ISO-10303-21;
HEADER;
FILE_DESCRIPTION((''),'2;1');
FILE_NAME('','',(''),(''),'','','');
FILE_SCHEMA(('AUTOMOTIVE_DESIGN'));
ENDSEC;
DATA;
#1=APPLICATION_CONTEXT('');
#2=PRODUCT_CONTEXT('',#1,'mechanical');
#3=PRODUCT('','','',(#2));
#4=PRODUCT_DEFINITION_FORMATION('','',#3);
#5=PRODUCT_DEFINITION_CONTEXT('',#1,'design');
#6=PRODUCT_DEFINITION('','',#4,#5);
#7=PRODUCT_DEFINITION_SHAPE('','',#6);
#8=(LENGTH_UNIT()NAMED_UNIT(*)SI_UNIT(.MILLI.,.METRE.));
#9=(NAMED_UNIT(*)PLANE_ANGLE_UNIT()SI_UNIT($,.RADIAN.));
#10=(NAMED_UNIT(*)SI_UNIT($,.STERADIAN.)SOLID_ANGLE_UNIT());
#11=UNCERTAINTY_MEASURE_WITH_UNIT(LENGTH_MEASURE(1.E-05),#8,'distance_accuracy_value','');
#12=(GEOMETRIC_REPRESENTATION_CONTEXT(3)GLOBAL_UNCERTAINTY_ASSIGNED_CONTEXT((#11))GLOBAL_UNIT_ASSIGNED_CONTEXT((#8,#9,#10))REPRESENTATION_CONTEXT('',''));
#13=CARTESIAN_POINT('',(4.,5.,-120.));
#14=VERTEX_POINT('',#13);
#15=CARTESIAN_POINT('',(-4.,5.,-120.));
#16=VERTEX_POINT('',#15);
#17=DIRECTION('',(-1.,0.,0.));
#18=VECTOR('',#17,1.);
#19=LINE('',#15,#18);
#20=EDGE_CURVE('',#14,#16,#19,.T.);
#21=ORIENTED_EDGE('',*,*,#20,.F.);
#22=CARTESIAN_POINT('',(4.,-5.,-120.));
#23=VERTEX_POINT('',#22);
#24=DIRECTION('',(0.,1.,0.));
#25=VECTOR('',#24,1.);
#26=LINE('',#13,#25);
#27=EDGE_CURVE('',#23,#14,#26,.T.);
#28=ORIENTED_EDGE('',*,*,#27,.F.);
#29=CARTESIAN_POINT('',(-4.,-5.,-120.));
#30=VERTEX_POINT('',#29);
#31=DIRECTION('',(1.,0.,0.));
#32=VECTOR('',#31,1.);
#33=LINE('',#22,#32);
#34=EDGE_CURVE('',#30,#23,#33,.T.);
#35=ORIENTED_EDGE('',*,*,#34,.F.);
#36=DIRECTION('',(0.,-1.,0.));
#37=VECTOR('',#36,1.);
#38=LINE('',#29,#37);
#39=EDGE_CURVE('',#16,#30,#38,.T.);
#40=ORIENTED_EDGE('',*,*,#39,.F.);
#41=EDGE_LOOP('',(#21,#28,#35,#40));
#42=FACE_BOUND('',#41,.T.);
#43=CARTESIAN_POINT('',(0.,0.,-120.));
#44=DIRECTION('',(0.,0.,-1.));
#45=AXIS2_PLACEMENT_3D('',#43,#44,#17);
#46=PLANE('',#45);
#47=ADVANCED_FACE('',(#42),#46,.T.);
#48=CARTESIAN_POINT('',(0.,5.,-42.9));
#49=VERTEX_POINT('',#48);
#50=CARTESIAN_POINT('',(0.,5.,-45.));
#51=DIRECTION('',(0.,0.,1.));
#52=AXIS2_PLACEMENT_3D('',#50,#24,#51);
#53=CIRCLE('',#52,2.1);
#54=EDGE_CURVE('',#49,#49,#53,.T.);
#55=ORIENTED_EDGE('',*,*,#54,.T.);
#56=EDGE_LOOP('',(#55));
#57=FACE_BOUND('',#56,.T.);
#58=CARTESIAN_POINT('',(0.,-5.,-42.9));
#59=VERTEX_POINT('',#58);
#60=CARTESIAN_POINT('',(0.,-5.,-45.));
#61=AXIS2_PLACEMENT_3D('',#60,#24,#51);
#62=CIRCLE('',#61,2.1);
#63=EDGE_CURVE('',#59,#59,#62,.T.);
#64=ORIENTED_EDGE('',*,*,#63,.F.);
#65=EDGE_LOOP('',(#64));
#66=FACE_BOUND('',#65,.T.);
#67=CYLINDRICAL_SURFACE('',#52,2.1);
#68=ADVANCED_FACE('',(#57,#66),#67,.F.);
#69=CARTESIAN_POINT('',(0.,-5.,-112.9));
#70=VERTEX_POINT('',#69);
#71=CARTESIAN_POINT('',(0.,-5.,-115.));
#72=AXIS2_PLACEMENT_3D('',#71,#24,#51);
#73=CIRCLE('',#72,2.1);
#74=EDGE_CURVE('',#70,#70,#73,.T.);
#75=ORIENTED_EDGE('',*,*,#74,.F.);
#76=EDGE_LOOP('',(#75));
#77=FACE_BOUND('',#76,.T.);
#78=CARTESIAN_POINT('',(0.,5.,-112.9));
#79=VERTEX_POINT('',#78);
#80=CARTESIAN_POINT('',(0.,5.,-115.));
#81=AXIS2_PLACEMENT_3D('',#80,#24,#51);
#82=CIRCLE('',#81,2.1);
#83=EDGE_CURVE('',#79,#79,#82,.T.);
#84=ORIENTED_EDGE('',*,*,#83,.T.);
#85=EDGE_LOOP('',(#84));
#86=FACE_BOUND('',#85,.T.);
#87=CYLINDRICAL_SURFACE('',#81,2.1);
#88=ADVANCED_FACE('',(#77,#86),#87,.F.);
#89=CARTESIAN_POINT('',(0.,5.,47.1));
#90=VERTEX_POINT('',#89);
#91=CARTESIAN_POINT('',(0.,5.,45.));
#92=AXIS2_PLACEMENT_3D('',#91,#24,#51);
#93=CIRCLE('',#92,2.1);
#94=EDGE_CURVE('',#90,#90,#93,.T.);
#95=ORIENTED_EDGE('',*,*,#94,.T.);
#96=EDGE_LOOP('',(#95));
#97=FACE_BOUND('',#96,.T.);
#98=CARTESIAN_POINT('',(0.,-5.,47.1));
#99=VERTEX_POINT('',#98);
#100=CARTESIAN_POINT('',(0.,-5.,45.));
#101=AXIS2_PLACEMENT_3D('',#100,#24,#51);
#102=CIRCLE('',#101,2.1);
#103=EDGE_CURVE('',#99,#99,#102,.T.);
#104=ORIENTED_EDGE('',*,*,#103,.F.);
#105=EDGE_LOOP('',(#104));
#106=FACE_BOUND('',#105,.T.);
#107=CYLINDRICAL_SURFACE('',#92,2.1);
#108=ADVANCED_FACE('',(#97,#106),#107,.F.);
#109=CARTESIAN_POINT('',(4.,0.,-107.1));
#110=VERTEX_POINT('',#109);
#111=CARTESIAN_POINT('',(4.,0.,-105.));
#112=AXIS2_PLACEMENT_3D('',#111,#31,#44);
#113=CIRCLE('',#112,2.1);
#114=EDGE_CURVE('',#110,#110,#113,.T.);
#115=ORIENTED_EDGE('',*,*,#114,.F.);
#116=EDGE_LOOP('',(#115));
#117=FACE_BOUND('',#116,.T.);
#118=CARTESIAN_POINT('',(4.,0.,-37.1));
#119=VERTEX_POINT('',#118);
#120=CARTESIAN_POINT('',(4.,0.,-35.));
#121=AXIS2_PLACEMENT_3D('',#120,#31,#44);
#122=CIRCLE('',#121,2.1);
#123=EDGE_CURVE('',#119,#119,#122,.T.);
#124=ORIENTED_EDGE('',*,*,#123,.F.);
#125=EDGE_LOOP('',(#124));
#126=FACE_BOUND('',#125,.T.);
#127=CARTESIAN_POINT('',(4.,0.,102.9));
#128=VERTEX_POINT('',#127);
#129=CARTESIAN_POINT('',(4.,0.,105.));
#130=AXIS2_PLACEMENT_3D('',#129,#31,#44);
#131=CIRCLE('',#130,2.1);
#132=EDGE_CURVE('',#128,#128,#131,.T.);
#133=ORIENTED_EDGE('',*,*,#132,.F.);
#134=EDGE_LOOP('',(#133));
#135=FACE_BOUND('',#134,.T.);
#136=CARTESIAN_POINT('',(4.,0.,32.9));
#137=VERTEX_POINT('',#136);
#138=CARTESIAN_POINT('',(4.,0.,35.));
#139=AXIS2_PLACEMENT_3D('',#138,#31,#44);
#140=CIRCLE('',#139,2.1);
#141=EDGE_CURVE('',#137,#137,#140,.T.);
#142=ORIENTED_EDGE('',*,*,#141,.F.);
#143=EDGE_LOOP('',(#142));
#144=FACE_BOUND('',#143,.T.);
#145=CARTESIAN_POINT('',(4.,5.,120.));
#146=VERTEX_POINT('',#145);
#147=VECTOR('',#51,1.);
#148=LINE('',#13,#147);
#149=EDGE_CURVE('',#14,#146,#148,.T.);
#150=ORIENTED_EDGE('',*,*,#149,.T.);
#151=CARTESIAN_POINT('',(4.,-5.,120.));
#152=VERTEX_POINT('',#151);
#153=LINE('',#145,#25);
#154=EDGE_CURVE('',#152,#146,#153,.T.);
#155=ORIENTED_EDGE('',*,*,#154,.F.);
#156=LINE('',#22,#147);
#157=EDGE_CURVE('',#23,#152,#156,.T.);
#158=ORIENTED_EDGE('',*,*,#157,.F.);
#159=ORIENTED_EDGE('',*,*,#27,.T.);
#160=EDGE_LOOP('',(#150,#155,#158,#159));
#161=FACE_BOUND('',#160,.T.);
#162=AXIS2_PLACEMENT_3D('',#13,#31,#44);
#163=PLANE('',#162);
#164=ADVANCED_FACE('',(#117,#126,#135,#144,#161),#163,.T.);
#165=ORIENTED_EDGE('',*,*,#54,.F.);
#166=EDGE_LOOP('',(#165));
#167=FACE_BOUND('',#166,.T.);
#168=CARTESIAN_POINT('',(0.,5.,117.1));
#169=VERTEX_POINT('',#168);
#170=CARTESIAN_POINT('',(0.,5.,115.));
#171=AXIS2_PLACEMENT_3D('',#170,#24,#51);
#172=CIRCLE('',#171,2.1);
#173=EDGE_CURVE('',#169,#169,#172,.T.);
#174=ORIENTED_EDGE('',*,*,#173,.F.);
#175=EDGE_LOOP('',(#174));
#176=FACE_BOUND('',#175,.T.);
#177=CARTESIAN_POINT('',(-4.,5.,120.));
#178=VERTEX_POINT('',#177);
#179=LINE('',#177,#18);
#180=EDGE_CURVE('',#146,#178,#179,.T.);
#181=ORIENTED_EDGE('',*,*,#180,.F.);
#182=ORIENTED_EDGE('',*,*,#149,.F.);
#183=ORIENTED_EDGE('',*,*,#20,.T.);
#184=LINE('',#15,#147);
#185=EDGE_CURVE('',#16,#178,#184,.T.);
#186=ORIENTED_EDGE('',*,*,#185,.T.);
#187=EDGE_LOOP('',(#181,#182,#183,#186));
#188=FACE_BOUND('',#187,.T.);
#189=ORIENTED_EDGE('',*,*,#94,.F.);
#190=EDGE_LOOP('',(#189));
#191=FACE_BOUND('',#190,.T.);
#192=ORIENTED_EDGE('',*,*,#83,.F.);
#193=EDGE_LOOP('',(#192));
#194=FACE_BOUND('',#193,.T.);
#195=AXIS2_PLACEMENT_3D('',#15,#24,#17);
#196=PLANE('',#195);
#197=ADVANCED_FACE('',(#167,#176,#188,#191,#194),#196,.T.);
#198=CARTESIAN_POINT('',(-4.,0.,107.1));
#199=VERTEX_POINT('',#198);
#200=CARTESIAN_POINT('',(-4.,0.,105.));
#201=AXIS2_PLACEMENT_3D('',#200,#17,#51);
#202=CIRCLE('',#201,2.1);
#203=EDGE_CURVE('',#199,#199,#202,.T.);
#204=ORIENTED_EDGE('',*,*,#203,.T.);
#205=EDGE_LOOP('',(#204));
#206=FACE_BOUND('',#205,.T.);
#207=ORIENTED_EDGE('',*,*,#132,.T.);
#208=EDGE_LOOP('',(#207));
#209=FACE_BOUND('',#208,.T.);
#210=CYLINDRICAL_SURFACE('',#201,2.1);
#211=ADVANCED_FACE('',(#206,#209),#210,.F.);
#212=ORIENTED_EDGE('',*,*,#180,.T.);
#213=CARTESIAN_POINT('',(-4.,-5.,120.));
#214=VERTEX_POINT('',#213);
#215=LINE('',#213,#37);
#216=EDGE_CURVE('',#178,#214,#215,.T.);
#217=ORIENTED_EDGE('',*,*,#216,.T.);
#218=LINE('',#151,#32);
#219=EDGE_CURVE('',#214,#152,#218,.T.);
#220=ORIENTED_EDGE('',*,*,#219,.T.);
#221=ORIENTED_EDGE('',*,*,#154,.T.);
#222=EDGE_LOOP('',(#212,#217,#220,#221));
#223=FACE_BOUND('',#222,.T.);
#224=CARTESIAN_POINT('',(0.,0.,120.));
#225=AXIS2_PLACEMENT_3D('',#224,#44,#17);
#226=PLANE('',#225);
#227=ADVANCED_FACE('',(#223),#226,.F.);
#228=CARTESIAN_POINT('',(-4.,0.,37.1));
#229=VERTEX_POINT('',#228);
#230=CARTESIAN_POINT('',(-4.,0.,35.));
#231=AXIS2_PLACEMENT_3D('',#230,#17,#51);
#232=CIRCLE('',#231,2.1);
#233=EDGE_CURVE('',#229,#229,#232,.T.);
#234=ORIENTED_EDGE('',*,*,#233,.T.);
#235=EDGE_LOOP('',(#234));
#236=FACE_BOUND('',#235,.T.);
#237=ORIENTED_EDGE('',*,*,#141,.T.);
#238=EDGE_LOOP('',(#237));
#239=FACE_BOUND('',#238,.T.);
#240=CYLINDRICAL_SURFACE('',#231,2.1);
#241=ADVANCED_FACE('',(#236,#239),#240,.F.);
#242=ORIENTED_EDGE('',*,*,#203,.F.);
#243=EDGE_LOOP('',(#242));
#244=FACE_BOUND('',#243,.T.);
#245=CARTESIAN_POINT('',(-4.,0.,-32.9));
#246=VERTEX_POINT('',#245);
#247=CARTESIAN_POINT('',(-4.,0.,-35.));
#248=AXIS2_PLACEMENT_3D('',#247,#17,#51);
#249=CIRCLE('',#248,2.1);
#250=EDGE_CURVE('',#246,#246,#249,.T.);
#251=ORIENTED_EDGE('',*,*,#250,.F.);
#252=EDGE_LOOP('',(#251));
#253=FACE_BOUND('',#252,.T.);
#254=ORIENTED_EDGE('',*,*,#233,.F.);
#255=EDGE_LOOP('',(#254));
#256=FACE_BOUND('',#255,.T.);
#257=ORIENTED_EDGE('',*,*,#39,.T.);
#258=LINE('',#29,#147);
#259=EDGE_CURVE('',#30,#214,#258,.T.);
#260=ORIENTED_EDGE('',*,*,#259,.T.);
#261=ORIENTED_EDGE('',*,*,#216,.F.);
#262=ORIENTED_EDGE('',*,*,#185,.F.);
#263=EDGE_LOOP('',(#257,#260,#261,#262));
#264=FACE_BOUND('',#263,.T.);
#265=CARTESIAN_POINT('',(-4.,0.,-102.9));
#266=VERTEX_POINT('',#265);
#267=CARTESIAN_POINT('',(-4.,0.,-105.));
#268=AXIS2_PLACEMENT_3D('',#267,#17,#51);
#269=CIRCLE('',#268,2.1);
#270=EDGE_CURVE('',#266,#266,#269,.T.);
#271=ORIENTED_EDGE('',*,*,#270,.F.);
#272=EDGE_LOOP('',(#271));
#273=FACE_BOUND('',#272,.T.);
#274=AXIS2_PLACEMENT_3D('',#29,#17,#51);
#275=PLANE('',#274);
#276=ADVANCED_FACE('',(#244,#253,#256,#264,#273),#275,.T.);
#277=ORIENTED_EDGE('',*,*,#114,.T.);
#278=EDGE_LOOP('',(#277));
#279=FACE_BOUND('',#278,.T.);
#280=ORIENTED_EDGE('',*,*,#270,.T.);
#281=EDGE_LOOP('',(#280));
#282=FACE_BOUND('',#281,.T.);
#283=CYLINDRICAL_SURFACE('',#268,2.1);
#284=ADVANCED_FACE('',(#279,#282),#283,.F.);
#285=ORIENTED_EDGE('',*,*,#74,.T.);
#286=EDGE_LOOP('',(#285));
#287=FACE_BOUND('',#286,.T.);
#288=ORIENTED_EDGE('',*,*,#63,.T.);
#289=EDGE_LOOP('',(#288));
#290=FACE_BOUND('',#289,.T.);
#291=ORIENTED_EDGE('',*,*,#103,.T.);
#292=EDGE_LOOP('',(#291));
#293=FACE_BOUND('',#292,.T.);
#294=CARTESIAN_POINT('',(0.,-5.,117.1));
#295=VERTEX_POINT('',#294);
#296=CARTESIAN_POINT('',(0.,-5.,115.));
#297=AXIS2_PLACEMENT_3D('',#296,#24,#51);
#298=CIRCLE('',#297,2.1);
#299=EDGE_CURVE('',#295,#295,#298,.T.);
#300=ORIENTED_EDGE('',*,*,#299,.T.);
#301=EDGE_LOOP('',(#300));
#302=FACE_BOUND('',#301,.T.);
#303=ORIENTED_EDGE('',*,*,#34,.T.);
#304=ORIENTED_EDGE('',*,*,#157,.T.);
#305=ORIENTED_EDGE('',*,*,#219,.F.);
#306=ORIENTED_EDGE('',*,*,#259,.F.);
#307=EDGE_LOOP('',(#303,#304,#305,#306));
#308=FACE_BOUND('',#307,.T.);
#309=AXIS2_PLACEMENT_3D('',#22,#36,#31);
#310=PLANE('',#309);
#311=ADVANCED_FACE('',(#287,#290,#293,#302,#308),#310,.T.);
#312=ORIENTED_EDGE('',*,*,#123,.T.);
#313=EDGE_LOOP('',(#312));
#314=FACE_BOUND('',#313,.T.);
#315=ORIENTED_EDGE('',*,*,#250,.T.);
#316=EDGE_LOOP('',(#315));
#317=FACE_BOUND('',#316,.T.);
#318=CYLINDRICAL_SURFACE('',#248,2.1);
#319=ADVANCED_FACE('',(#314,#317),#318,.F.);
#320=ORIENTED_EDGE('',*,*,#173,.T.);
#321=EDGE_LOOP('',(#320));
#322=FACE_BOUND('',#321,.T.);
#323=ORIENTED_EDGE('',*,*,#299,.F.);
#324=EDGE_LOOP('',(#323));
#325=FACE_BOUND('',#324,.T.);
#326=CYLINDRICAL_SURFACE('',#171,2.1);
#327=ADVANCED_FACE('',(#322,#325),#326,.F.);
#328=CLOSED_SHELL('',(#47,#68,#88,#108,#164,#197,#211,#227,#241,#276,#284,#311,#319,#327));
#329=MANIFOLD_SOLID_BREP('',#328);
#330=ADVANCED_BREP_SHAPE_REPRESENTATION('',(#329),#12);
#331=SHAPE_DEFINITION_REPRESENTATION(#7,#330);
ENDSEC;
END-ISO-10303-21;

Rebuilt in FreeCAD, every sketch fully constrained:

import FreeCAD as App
import Part
import Sketcher
Q = App.Units.Quantity

doc = App.newDocument("Part")
body = doc.addObject("PartDesign::Body", "Body")

# Sketch on XY plane
sketch1 = doc.addObject("Sketcher::SketchObject", "Sketch")
body.addObject(sketch1)
sketch1.AttachmentSupport = (doc.XY_Plane, [""])
sketch1.MapMode = "FlatFace"
sketch1.addGeometry(Part.LineSegment(App.Vector(-4, 5, 0), App.Vector(-4, -5, 0)), False)
sketch1.addGeometry(Part.LineSegment(App.Vector(-4, -5, 0), App.Vector(4, -5, 0)), False)
sketch1.addGeometry(Part.LineSegment(App.Vector(4, -5, 0), App.Vector(4, 5, 0)), False)
sketch1.addGeometry(Part.LineSegment(App.Vector(4, 5, 0), App.Vector(-4, 5, 0)), False)
sketch1.addConstraint(Sketcher.Constraint("Coincident", 0, 2, 1, 1))
sketch1.addConstraint(Sketcher.Constraint("Coincident", 1, 2, 2, 1))
sketch1.addConstraint(Sketcher.Constraint("Coincident", 2, 2, 3, 1))
sketch1.addConstraint(Sketcher.Constraint("Coincident", 3, 2, 0, 1))
sketch1.addConstraint(Sketcher.Constraint("Vertical", 0))
sketch1.addConstraint(Sketcher.Constraint("Horizontal", 1))
sketch1.addConstraint(Sketcher.Constraint("Vertical", 2))
sketch1.addConstraint(Sketcher.Constraint("Horizontal", 3))
sketch1.addConstraint(Sketcher.Constraint("Symmetric", 0, 2, 2, 2, -1, 1))
sketch1.addConstraint(Sketcher.Constraint("DistanceX", 1, 1, 1, 2, 8.0))
sketch1.addConstraint(Sketcher.Constraint("DistanceY", 0, 2, 0, 1, 10.0))
pad1 = doc.addObject("PartDesign::Pad", "Pad")
body.addObject(pad1)
pad1.Profile = sketch1
pad1.Type = "TwoLengths"
pad1.Length = 120
pad1.Length2 = 120

# Sketch on XZ plane
sketch2 = doc.addObject("Sketcher::SketchObject", "Sketch001")
body.addObject(sketch2)
sketch2.AttachmentSupport = (doc.XZ_Plane, [""])
sketch2.MapMode = "FlatFace"
sketch2.AttachmentOffset = App.Placement(App.Vector(0, 0, -5), App.Rotation())
sketch2.addGeometry(Part.Circle(App.Vector(0, 115, 0), App.Vector(0, 0, 1), 2.1), False)
sketch2.addGeometry(Part.Circle(App.Vector(0, 45, 0), App.Vector(0, 0, 1), 2.1), False)
sketch2.addConstraint(Sketcher.Constraint("Equal", 0, 1))
sketch2.addConstraint(Sketcher.Constraint("PointOnObject", 0, 3, -2))
sketch2.addConstraint(Sketcher.Constraint("PointOnObject", 1, 3, -2))
sketch2.addConstraint(Sketcher.Constraint("Diameter", 0, 4.2))
sketch2.addConstraint(Sketcher.Constraint("DistanceY", -1, 1, 0, 3, 115.0))
sketch2.addConstraint(Sketcher.Constraint("DistanceY", -1, 1, 1, 3, 45.0))
doc.recompute()
hole = doc.addObject("PartDesign::Hole", "Hole")
body.addObject(hole)
hole.Profile = sketch2
hole.ThreadType = "None"
hole.Diameter = 4.2
hole.DepthType = "ThroughAll"
hole.Reversed = True

# Sketch on XZ plane
sketch3 = doc.addObject("Sketcher::SketchObject", "Sketch002")
body.addObject(sketch3)
sketch3.AttachmentSupport = (doc.XZ_Plane, [""])
sketch3.MapMode = "FlatFace"
sketch3.addGeometry(Part.LineSegment(App.Vector(7.261807, 105, 0), App.Vector(-4, 105, 0)), False)
sketch3.addGeometry(Part.LineSegment(App.Vector(-4, 105, 0), App.Vector(-4, 107.1, 0)), False)
sketch3.addGeometry(Part.LineSegment(App.Vector(-4, 107.1, 0), App.Vector(6, 107.1, 0)), False)
sketch3.addGeometry(Part.LineSegment(App.Vector(6, 107.1, 0), App.Vector(7.261807, 105, 0)), False)
sketch3.addGeometry(Part.LineSegment(App.Vector(-4, 105, 0), App.Vector(7.261807, 105, 0)), True)  # axis
sketch3.addConstraint(Sketcher.Constraint("Coincident", 0, 2, 1, 1))
sketch3.addConstraint(Sketcher.Constraint("Coincident", 1, 2, 2, 1))
sketch3.addConstraint(Sketcher.Constraint("Coincident", 2, 2, 3, 1))
sketch3.addConstraint(Sketcher.Constraint("Coincident", 3, 2, 0, 1))
sketch3.addConstraint(Sketcher.Constraint("Horizontal", 0))
sketch3.addConstraint(Sketcher.Constraint("Vertical", 1))
sketch3.addConstraint(Sketcher.Constraint("Horizontal", 2))
sketch3.addConstraint(Sketcher.Constraint("Horizontal", 4))
sketch3.addConstraint(Sketcher.Constraint("Coincident", 4, 1, 0, 2))
sketch3.addConstraint(Sketcher.Constraint("Equal", 0, 4))
sketch3.addConstraint(Sketcher.Constraint("DistanceX", 2, 1, 2, 2, 10.0))
sketch3.addConstraint(Sketcher.Constraint("Angle", 3, Q("-59 deg")))
sketch3.addConstraint(Sketcher.Constraint("DistanceY", 1, 1, 1, 2, 2.1))
sketch3.addConstraint(Sketcher.Constraint("DistanceX", 0, 2, -1, 1, 4.0))
sketch3.addConstraint(Sketcher.Constraint("DistanceY", -1, 1, 0, 2, 105.0))
groove = doc.addObject("PartDesign::Groove", "Groove")
body.addObject(groove)
groove.Profile = sketch3
groove.ReferenceAxis = (sketch3, ["Axis0"])
groove.Angle = 360
doc.recompute()

linearpattern = doc.addObject("PartDesign::LinearPattern", "LinearPattern")
body.addObject(linearpattern)
linearpattern.Originals = [groove]
linearpattern.Direction = (doc.Z_Axis, [""])
linearpattern.Mode = "offset"
linearpattern.Offset = 70
linearpattern.Occurrences = 2
linearpattern.Reversed = True
body.Tip = linearpattern
doc.recompute()

mirrored = doc.addObject("PartDesign::Mirrored", "Mirrored")
body.addObject(mirrored)
mirrored.Originals = [hole, groove]
mirrored.MirrorPlane = (doc.XY_Plane, [""])
body.Tip = mirrored

# Sketch on XZ plane
sketch4 = doc.addObject("Sketcher::SketchObject", "Sketch003")
body.addObject(sketch4)
sketch4.AttachmentSupport = (doc.XZ_Plane, [""])
sketch4.MapMode = "FlatFace"
sketch4.addGeometry(Part.LineSegment(App.Vector(-4, -35, 0), App.Vector(7.261807, -35, 0)), False)
sketch4.addGeometry(Part.LineSegment(App.Vector(7.261807, -35, 0), App.Vector(6, -37.1, 0)), False)
sketch4.addGeometry(Part.LineSegment(App.Vector(6, -37.1, 0), App.Vector(-4, -37.1, 0)), False)
sketch4.addGeometry(Part.LineSegment(App.Vector(-4, -37.1, 0), App.Vector(-4, -35, 0)), False)
sketch4.addGeometry(Part.LineSegment(App.Vector(7.261807, -35, 0), App.Vector(-4, -35, 0)), True)  # axis
sketch4.addConstraint(Sketcher.Constraint("Coincident", 0, 2, 1, 1))
sketch4.addConstraint(Sketcher.Constraint("Coincident", 1, 2, 2, 1))
sketch4.addConstraint(Sketcher.Constraint("Coincident", 2, 2, 3, 1))
sketch4.addConstraint(Sketcher.Constraint("Coincident", 3, 2, 0, 1))
sketch4.addConstraint(Sketcher.Constraint("Horizontal", 0))
sketch4.addConstraint(Sketcher.Constraint("Horizontal", 2))
sketch4.addConstraint(Sketcher.Constraint("Vertical", 3))
sketch4.addConstraint(Sketcher.Constraint("Horizontal", 4))
sketch4.addConstraint(Sketcher.Constraint("Coincident", 4, 1, 0, 2))
sketch4.addConstraint(Sketcher.Constraint("Vertical", 2, 2, 4, 2))
sketch4.addConstraint(Sketcher.Constraint("DistanceX", 2, 2, 2, 1, 10.0))
sketch4.addConstraint(Sketcher.Constraint("Angle", 1, Q("-121 deg")))
sketch4.addConstraint(Sketcher.Constraint("DistanceY", 3, 1, 3, 2, 2.1))
sketch4.addConstraint(Sketcher.Constraint("DistanceY", 0, 2, -1, 1, 35.0))
sketch4.addConstraint(Sketcher.Constraint("DistanceX", -1, 1, 1, 2, 6.0))
groove2 = doc.addObject("PartDesign::Groove", "Groove001")
body.addObject(groove2)
groove2.Profile = sketch4
groove2.ReferenceAxis = (sketch4, ["Axis0"])
groove2.Angle = 360

doc.recompute()
